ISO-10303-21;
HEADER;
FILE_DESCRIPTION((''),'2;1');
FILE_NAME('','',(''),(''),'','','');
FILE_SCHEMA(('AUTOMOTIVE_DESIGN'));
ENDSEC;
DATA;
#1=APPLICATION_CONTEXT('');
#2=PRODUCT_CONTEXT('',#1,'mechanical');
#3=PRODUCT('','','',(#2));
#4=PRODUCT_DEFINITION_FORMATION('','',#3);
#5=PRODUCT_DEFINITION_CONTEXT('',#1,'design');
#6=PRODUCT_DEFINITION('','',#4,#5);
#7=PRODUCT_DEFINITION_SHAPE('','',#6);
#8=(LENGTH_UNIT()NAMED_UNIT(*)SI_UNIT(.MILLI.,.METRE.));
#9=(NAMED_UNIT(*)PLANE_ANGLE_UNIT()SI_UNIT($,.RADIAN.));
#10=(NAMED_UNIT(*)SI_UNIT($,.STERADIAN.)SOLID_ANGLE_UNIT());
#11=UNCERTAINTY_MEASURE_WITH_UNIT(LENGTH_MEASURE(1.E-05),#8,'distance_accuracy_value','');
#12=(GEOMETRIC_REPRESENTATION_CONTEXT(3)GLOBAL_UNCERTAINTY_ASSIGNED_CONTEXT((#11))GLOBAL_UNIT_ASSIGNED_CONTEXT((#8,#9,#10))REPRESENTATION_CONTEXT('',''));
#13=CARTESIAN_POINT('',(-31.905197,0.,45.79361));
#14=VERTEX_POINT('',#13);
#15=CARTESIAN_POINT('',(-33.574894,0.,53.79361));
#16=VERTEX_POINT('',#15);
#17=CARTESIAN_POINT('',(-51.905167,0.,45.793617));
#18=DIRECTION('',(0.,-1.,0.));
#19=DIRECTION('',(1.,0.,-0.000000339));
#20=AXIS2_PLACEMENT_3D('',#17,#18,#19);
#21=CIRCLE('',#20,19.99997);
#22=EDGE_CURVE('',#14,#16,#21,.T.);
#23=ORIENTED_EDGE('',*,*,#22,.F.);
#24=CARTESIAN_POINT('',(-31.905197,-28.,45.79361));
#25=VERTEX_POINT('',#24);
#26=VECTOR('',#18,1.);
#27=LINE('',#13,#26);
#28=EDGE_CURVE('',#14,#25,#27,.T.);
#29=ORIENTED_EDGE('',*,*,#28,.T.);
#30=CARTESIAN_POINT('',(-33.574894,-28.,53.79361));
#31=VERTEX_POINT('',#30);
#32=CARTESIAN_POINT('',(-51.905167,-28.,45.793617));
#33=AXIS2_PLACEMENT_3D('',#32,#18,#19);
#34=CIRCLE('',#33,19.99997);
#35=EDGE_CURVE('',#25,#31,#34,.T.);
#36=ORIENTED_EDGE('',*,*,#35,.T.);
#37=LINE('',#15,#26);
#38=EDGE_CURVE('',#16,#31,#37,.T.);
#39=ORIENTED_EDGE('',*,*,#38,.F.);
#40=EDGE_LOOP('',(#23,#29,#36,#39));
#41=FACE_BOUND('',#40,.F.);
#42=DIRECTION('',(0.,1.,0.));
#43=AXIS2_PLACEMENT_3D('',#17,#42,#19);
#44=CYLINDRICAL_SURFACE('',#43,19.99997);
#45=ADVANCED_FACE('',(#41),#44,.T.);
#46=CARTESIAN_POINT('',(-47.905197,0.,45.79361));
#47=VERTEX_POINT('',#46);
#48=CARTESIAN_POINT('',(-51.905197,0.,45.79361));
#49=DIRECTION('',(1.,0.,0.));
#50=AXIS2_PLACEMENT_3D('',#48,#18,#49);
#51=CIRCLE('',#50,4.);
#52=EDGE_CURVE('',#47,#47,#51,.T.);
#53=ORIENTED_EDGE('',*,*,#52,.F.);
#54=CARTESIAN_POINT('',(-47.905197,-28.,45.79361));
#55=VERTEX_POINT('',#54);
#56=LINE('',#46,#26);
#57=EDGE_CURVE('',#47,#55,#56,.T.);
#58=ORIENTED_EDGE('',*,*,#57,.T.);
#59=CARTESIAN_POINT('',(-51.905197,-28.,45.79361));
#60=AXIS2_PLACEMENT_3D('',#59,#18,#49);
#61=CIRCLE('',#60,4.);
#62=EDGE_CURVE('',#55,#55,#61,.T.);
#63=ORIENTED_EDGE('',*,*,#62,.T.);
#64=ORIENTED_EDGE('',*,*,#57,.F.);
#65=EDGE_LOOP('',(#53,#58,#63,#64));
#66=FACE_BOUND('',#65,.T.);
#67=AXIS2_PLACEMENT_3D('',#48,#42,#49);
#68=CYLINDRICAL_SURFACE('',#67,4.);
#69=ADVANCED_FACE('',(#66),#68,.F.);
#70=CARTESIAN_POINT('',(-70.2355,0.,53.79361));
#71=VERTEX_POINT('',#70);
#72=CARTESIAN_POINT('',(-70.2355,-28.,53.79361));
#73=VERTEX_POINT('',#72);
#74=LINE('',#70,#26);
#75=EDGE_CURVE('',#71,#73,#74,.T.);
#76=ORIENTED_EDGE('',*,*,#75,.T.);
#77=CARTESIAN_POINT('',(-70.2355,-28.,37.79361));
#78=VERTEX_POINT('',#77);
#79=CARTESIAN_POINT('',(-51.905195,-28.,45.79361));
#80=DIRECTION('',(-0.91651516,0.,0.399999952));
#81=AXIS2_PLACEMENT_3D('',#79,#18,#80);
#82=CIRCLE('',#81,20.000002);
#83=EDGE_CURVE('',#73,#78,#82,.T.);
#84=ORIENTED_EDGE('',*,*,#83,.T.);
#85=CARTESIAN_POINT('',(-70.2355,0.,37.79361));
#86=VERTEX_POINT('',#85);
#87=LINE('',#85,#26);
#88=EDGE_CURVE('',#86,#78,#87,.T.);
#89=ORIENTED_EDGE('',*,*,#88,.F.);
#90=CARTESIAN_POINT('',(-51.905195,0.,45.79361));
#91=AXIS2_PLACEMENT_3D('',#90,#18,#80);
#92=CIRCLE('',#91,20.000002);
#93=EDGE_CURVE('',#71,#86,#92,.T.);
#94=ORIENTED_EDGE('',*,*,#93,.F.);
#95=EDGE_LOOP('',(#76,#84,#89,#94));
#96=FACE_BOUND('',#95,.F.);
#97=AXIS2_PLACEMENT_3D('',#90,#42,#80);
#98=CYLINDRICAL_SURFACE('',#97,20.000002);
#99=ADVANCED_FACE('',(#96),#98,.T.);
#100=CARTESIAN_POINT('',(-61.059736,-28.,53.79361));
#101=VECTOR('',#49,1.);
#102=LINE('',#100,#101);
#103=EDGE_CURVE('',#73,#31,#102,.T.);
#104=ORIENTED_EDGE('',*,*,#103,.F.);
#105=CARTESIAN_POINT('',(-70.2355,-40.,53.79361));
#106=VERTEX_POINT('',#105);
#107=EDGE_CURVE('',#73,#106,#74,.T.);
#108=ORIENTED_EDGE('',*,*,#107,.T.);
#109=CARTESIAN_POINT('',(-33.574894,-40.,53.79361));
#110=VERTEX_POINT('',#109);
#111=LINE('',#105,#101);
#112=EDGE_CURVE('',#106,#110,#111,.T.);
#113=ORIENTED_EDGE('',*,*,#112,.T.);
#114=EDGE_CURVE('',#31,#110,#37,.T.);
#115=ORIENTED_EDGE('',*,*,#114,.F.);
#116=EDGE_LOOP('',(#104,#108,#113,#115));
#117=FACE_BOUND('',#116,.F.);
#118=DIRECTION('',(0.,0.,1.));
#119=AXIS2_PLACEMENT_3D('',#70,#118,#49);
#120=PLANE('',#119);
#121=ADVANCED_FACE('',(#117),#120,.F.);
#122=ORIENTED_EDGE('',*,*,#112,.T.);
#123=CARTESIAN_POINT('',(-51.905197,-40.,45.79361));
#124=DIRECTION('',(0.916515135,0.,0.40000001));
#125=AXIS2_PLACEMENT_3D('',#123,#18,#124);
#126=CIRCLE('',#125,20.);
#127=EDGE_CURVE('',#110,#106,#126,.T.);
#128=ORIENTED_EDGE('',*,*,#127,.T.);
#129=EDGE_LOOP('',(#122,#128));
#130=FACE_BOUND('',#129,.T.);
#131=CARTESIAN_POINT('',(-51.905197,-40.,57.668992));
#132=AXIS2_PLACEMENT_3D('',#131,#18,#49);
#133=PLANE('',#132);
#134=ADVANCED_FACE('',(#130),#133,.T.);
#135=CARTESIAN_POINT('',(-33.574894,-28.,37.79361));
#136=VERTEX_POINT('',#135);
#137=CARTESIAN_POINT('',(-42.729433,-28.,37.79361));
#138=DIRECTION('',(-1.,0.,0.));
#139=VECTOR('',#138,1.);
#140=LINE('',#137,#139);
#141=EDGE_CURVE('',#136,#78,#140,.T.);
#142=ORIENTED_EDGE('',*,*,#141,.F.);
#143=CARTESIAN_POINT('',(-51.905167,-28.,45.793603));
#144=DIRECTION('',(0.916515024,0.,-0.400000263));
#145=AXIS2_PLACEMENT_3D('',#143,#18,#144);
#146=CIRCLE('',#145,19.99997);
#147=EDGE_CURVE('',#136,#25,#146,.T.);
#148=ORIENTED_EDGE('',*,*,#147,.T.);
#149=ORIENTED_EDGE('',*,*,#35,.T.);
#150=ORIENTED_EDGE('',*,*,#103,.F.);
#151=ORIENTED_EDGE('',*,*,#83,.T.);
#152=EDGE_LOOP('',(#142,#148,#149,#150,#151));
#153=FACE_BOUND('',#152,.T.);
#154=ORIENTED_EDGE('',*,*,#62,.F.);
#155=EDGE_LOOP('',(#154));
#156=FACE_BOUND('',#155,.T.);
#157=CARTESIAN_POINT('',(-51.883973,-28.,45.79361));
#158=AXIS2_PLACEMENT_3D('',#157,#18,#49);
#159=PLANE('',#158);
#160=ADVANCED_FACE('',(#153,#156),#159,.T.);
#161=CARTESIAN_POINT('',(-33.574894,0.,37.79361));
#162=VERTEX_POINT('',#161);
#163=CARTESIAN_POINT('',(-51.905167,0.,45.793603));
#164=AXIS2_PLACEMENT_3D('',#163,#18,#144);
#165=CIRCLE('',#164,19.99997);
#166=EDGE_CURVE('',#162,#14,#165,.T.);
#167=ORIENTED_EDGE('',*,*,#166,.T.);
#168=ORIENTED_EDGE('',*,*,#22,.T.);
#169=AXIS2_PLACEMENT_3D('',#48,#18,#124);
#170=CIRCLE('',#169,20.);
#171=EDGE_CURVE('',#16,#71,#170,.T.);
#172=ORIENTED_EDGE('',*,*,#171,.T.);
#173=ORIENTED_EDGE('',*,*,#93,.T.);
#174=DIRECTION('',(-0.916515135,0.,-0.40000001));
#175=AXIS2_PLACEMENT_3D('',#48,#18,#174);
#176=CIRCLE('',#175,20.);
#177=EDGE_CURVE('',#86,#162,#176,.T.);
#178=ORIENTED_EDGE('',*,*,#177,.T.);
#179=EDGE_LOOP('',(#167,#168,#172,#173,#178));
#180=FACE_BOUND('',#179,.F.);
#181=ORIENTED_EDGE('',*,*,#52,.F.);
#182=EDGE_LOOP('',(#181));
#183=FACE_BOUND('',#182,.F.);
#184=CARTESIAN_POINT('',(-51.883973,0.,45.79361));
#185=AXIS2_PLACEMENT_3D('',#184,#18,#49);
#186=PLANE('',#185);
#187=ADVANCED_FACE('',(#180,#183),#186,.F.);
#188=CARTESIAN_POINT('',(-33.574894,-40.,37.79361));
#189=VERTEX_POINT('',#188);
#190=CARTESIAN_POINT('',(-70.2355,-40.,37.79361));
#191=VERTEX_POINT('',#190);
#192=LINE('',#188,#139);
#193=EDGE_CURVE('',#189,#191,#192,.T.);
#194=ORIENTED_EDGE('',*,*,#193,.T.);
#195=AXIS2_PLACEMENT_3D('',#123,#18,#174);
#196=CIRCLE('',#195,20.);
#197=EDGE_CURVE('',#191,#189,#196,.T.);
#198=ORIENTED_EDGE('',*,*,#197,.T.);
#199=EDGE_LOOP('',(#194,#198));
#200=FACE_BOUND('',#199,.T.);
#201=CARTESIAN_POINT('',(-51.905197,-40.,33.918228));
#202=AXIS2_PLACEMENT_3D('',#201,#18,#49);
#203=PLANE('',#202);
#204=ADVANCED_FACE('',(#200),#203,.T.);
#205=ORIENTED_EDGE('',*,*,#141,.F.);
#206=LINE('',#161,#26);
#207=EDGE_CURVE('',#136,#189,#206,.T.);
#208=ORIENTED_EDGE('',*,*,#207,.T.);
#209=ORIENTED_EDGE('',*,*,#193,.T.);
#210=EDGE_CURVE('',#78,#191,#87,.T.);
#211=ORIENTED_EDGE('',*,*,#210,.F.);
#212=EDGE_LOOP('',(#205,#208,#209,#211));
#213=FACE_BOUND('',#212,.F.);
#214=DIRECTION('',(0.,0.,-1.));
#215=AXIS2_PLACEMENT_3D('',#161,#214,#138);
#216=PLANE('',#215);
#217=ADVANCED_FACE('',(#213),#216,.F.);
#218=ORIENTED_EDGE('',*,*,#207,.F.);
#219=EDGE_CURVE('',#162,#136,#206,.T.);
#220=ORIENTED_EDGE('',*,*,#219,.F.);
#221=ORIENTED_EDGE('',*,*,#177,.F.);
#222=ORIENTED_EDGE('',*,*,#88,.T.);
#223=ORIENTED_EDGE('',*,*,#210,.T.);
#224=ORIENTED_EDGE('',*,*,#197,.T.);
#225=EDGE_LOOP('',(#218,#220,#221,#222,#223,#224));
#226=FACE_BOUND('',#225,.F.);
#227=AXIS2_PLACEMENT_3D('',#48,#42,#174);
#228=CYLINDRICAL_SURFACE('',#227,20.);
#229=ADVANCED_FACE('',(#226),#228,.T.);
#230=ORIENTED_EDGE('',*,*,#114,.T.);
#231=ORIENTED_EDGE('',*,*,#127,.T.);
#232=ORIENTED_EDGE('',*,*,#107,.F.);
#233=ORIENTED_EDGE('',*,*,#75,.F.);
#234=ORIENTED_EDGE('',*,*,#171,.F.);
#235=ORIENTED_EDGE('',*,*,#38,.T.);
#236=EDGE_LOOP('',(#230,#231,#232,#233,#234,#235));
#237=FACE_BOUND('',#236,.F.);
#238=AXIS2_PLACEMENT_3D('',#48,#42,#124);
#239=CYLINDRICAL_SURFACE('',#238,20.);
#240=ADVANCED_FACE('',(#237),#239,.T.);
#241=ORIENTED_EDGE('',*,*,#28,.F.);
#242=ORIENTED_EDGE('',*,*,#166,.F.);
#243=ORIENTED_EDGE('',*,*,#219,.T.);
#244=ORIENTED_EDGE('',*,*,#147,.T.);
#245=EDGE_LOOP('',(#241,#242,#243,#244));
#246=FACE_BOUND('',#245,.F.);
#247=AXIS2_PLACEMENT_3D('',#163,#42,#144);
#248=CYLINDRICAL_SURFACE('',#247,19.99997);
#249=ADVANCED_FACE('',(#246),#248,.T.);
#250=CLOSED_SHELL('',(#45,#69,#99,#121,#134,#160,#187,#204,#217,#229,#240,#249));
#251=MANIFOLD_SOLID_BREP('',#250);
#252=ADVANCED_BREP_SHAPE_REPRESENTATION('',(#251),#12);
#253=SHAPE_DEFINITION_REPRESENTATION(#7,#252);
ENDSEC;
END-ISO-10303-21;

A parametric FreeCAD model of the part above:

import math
import FreeCAD as App
import Part
import Sketcher

doc = App.newDocument("Part")
body = doc.addObject("PartDesign::Body", "Body")
body.AllowCompound = True

# Sketch on XZ plane
sketch1 = doc.addObject("Sketcher::SketchObject", "Sketch")
body.addObject(sketch1)
sketch1.AttachmentSupport = (doc.XZ_Plane, [""])
sketch1.MapMode = "FlatFace"
sketch1.addGeometry([
    Part.LineSegment(App.Vector(-70, 54, 0), App.Vector(-34, 54, 0)),
    Part.ArcOfCircle(Part.Circle(App.Vector(-52, 46, 0), App.Vector(0, 0, 1), 20), math.radians(24), math.radians(156)),
    Part.ArcOfCircle(Part.Circle(App.Vector(-52, 46, 0), App.Vector(0, 0, 1), 20), math.radians(-156), math.radians(-24)),
    Part.LineSegment(App.Vector(-34, 38, 0), App.Vector(-70, 38, 0)),
], False)
sketch1.addConstraint([
    Sketcher.Constraint("Coincident", 0, 1, 1, 2),
    Sketcher.Constraint("Coincident", 1, 1, 0, 2),
    Sketcher.Constraint("Coincident", 2, 1, 3, 2),
    Sketcher.Constraint("Coincident", 3, 1, 2, 2),
    Sketcher.Constraint("Horizontal", 0),
    Sketcher.Constraint("Horizontal", 3),
    Sketcher.Constraint("Coincident", 2, 3, 1, 3),
    Sketcher.Constraint("Equal", 1, 2),
    Sketcher.Constraint("Vertical", 0, 1, 2, 1),
    Sketcher.Constraint("Radius", 1, 20.0),
    Sketcher.Constraint("DistanceY", 2, 3, 0, 1, 8.0),
    Sketcher.Constraint("DistanceX", 0, 1, -1, 1, 70.2355),
    Sketcher.Constraint("DistanceY", -1, 1, 1, 3, 45.79361),
])
pad1 = doc.addObject("PartDesign::Pad", "Pad")
body.addObject(pad1)
pad1.Profile = sketch1
pad1.Length = 40

# Sketch on XZ plane
sketch2 = doc.addObject("Sketcher::SketchObject", "Sketch001")
body.addObject(sketch2)
sketch2.AttachmentSupport = (doc.XZ_Plane, [""])
sketch2.MapMode = "FlatFace"
sketch2.addGeometry([
    Part.ArcOfCircle(Part.Circle(App.Vector(-51.905167, 45.793603, 0), App.Vector(0, 0, 1), 19.99997), math.radians(-23.578195), math.radians(0.000019)),  # 0
    Part.ArcOfCircle(Part.Circle(App.Vector(-51.905167, 45.793617, 0), App.Vector(0, 0, 1), 19.99997), math.radians(-0.000019), math.radians(23.578195)),  # 1
    Part.ArcOfCircle(Part.Circle(App.Vector(-51.905197, 45.79361, 0), App.Vector(0, 0, 1), 20), math.radians(23.578179), math.radians(156.421821)),  # 2
    Part.ArcOfCircle(Part.Circle(App.Vector(-51.905195, 45.79361, 0), App.Vector(0, 0, 1), 20.000002), math.radians(156.421825), math.radians(203.578175)),  # 3
    Part.ArcOfCircle(Part.Circle(App.Vector(-51.905197, 45.79361, 0), App.Vector(0, 0, 1), 20), math.radians(-156.421821), math.radians(-23.578179)),  # 4
    Part.Circle(App.Vector(-51.905197, 45.79361, 0), App.Vector(0, 0, 1), 4),  # 5
], False)
sketch2.addConstraint([
    Sketcher.Constraint("Coincident", 0, 2, 1, 1),
    Sketcher.Constraint("Coincident", 1, 2, 2, 1),
    Sketcher.Constraint("Coincident", 2, 2, 3, 1),
    Sketcher.Constraint("Coincident", 3, 2, 4, 1),
    Sketcher.Constraint("Coincident", 4, 2, 0, 1),
    Sketcher.Constraint("Coincident", 3, 3, 2, 3),
    Sketcher.Constraint("Coincident", 4, 3, 2, 3),
    Sketcher.Constraint("Coincident", 5, 3, 2, 3),
    Sketcher.Constraint("Diameter", 5, 8.0),
    Sketcher.Constraint("Radius", 2, 20.0),
    Sketcher.Constraint("DistanceX", 5, 3, 0, 2, 20.0),
    Sketcher.Constraint("DistanceY", 0, 2, 1, 2, 8.0),
    Sketcher.Constraint("DistanceY", 3, 3, 1, 2, 8.0),
    Sketcher.Constraint("DistanceY", 4, 3, 2, 2, 8.0),
    Sketcher.Constraint("DistanceY", 3, 2, 2, 2, 16.0),
    Sketcher.Constraint("DistanceY", 4, 2, 0, 2, 8.0),
    Sketcher.Constraint("Radius", 0, 19.99997),
    Sketcher.Constraint("Radius", 1, 19.99997),
    Sketcher.Constraint("DistanceX", 2, 2, -1, 1, 70.2355),
    Sketcher.Constraint("DistanceY", -1, 1, 2, 3, 45.79361),
])
pad2 = doc.addObject("PartDesign::Pad", "Pad001")
body.addObject(pad2)
pad2.Profile = sketch2
pad2.Length = 28

doc.recompute()
